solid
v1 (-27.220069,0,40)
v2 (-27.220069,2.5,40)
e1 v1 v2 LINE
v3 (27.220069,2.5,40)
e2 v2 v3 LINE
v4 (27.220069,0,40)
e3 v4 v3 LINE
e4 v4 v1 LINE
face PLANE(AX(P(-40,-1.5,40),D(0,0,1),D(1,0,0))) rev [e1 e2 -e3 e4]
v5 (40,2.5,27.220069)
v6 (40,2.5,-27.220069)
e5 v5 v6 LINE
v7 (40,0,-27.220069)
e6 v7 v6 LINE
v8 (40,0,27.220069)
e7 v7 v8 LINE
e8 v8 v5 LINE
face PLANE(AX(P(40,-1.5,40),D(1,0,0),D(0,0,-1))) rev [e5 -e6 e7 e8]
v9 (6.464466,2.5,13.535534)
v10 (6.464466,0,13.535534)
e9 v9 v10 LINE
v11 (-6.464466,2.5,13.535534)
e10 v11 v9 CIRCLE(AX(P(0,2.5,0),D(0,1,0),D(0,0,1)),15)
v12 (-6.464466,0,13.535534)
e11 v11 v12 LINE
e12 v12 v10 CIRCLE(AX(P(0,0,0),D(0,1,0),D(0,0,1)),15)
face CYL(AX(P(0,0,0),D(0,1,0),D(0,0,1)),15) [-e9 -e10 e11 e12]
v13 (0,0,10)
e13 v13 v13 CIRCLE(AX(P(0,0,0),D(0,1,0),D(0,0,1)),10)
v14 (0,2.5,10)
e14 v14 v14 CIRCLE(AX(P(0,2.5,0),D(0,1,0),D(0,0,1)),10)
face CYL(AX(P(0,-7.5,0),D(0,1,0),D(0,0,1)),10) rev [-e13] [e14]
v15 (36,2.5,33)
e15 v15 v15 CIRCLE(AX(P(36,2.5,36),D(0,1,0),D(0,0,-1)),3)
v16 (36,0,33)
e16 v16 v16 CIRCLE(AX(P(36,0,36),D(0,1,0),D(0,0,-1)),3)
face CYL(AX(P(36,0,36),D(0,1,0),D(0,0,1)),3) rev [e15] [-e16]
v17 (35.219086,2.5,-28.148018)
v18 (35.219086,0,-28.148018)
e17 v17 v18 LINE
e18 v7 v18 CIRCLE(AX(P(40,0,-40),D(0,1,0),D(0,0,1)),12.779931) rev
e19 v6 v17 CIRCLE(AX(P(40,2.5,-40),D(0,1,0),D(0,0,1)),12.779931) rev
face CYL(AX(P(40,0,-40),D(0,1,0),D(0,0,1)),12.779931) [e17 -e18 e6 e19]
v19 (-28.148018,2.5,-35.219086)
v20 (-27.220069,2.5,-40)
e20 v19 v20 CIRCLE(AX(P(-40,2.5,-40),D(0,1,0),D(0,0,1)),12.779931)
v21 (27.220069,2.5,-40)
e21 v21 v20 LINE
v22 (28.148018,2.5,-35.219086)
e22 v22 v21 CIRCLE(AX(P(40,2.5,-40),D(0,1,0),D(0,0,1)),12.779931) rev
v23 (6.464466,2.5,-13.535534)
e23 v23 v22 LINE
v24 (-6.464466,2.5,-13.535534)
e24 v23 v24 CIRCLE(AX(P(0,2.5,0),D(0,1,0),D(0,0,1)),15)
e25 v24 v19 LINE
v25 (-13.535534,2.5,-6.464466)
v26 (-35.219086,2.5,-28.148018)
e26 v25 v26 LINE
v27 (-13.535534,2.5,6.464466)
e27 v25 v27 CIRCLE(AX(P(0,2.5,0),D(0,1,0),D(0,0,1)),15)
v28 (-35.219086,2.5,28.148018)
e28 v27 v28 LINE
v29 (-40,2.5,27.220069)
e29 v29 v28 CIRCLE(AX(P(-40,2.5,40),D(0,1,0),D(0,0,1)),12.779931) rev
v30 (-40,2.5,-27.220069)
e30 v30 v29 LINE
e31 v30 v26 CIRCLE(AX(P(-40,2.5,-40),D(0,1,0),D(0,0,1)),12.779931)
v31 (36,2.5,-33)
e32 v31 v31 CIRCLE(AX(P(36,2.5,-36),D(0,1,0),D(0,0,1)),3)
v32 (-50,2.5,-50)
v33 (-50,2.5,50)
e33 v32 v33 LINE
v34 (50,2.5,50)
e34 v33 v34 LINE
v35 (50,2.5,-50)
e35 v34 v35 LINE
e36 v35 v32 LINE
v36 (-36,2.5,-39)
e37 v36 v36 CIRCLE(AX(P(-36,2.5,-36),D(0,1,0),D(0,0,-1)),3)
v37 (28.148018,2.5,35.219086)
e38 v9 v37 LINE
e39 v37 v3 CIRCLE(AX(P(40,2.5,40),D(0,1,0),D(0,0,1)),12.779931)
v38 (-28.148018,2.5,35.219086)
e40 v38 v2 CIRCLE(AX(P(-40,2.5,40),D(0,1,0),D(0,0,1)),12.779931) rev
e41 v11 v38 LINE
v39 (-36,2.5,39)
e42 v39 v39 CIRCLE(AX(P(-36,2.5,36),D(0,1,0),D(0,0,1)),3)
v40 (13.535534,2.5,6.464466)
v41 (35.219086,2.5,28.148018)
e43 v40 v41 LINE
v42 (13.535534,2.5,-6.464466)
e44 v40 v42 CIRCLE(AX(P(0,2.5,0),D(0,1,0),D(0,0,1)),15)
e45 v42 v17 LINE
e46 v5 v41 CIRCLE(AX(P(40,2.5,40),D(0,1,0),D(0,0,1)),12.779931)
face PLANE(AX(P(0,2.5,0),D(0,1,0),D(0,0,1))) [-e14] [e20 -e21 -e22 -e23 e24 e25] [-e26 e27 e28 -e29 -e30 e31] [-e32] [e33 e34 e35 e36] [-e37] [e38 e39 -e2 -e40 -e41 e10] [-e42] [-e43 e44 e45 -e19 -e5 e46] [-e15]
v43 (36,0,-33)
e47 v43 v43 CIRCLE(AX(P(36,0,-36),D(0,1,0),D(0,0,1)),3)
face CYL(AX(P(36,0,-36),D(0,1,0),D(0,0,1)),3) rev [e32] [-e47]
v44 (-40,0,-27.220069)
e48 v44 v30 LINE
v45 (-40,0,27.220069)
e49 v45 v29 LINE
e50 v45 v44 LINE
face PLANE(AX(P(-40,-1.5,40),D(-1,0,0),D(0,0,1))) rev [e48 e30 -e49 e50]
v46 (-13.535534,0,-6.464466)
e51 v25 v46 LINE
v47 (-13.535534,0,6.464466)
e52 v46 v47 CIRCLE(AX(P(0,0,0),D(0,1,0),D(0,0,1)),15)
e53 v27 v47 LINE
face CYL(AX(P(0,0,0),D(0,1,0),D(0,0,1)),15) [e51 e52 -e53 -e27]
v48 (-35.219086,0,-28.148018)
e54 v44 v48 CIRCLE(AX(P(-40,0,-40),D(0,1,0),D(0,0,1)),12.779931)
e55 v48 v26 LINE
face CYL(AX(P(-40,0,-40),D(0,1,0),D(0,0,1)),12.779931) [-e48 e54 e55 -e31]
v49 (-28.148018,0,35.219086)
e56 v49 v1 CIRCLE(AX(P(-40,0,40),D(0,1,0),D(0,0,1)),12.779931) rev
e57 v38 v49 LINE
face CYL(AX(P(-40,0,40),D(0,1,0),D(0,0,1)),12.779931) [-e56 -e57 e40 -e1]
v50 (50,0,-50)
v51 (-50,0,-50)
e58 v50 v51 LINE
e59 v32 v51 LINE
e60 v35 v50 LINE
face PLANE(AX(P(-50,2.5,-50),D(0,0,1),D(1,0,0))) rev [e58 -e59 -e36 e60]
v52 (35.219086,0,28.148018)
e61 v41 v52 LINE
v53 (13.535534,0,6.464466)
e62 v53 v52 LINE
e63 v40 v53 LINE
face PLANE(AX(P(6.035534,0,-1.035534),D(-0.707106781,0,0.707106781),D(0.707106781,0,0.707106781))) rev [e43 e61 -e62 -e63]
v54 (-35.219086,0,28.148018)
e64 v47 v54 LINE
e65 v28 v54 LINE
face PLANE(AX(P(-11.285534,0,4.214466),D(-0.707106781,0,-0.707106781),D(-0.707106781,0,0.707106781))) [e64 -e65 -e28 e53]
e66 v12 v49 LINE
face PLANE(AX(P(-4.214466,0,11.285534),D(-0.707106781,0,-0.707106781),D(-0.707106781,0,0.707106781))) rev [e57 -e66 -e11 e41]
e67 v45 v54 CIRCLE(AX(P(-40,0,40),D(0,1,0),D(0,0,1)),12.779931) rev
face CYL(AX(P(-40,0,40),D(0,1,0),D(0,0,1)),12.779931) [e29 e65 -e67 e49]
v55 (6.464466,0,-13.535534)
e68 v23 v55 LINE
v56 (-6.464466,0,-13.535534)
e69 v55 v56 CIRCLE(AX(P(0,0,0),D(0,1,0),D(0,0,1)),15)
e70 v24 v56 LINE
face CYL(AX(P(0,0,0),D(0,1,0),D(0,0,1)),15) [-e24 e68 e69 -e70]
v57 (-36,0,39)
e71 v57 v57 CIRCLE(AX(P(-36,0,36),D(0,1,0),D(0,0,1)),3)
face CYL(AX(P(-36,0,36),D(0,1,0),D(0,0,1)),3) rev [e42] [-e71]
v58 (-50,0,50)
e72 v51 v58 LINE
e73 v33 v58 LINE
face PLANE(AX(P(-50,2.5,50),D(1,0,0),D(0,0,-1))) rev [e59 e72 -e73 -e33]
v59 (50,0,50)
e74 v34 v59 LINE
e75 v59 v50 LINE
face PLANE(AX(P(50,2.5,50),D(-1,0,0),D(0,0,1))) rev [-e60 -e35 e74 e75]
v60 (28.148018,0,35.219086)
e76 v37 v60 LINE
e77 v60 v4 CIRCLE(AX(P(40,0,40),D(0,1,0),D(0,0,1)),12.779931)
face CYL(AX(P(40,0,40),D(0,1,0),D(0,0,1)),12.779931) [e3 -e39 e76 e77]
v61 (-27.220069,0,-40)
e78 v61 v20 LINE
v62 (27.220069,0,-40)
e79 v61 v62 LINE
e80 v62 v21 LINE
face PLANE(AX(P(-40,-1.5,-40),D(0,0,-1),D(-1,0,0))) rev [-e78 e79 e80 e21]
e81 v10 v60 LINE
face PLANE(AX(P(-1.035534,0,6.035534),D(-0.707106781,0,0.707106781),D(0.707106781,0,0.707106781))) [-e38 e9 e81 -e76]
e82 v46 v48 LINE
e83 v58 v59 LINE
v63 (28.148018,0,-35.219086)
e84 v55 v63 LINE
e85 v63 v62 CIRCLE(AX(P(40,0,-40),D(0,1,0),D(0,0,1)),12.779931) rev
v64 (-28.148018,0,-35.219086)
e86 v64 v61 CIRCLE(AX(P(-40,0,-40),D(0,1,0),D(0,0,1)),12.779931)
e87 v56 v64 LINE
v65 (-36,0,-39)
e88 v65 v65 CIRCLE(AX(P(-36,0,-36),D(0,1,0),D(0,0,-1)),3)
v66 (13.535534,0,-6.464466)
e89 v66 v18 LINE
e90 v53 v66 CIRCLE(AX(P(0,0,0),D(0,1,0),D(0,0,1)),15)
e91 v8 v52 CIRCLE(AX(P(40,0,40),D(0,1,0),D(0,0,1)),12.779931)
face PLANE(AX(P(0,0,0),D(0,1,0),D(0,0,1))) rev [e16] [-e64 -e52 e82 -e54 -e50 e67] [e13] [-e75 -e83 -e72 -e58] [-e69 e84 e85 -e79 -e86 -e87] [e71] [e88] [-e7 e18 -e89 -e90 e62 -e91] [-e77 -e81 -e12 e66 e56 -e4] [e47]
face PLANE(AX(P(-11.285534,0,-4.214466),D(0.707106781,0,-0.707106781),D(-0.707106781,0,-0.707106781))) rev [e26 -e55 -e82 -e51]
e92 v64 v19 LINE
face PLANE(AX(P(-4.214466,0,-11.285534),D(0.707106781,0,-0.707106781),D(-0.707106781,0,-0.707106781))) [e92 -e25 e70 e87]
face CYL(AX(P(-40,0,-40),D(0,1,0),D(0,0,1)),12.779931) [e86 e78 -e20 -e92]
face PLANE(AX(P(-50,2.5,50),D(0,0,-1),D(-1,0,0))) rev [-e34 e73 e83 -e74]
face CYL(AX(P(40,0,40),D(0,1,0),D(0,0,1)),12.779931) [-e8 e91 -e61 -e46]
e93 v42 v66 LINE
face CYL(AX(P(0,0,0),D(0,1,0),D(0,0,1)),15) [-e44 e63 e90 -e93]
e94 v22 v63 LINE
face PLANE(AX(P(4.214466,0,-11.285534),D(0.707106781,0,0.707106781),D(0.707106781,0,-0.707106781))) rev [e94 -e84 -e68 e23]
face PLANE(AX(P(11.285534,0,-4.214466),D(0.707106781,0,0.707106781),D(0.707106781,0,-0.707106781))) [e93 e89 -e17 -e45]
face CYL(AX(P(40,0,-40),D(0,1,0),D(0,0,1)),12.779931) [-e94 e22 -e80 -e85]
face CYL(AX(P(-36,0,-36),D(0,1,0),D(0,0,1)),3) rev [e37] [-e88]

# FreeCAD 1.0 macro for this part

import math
import FreeCAD as App
import Part
import Sketcher

V = App.Vector

doc = App.newDocument("Part")
params = doc.addObject("Spreadsheet::Sheet", "Params")
for row, (alias, value) in enumerate([
    ("sketch1_width", "100 mm"),
    ("pad1_length", "2.5 mm"),
    ("sketch2_width", "80 mm"),
    ("pocket1_length", "4 mm"),
    ("pad2_length", "2.5 mm"),
    ("sketch4_diameter", "30 mm"),
    ("pad3_length", "2.5 mm"),
    ("sketch5_width", "5 mm"),
    ("pocket2_length", "2.5 mm"),
    ("sketch6_length", "10 mm"),
    ("pad4_length", "2.5 mm"),
    ("sketch7_diameter", "6 mm"),
    ("pocket3_length", "2.5 mm"),
    ("sketch8_diameter", "20 mm"),
    ("pocket4_length", "10 mm"),
], start=1):
    params.set(f"A{row}", alias)
    params.set(f"B{row}", "=" + value)
    params.setAlias(f"B{row}", alias)

body = doc.addObject("PartDesign::Body", "Body")

# Sketch on XZ plane
sketch1 = body.newObject("Sketcher::SketchObject", "Sketch")
sketch1.AttachmentSupport = (doc.getObject("XZ_Plane"), [""])
sketch1.MapMode = "FlatFace"
sketch1.addGeometry(Part.LineSegment(V(-50, -50, 0), V(-50, 50, 0)), False)
sketch1.addGeometry(Part.LineSegment(V(-50, 50, 0), V(50, 50, 0)), False)
sketch1.addGeometry(Part.LineSegment(V(50, 50, 0), V(50, -50, 0)), False)
sketch1.addGeometry(Part.LineSegment(V(50, -50, 0), V(-50, -50, 0)), False)
sketch1.addConstraint(Sketcher.Constraint("Coincident", 0, 2, 1, 1))
sketch1.addConstraint(Sketcher.Constraint("Coincident", 1, 2, 2, 1))
sketch1.addConstraint(Sketcher.Constraint("Coincident", 2, 2, 3, 1))
sketch1.addConstraint(Sketcher.Constraint("Coincident", 3, 2, 0, 1))
sketch1.addConstraint(Sketcher.Constraint("Vertical", 0))
sketch1.addConstraint(Sketcher.Constraint("Horizontal", 1))
sketch1.addConstraint(Sketcher.Constraint("Vertical", 2))
sketch1.addConstraint(Sketcher.Constraint("Horizontal", 3))
sketch1.addConstraint(Sketcher.Constraint("Symmetric", 0, 2, 2, 2, -1, 1))
sketch1.addConstraint(Sketcher.Constraint("Equal", 3, 0))
sketch1.addConstraint(Sketcher.Constraint("DistanceX", 1, 1, 1, 2, 100.0))
sketch1.setExpression("Constraints[10]", "Params.sketch1_width")
pad1 = body.newObject("PartDesign::Pad", "Pad")
pad1.Profile = sketch1
pad1.setExpression("Length", "Params.pad1_length")
pad1.Reversed = True

# Sketch on XZ plane
sketch2 = body.newObject("Sketcher::SketchObject", "Sketch001")
sketch2.AttachmentSupport = (doc.getObject("XZ_Plane"), [""])
sketch2.MapMode = "FlatFace"
sketch2.AttachmentOffset = App.Placement(V(0, 0, -2.5), App.Rotation())
sketch2.addGeometry(Part.LineSegment(V(-40, -40, 0), V(-40, 40, 0)), False)
sketch2.addGeometry(Part.LineSegment(V(-40, 40, 0), V(40, 40, 0)), False)
sketch2.addGeometry(Part.LineSegment(V(40, 40, 0), V(40, -40, 0)), False)
sketch2.addGeometry(Part.LineSegment(V(40, -40, 0), V(-40, -40, 0)), False)
sketch2.addConstraint(Sketcher.Constraint("Coincident", 0, 2, 1, 1))
sketch2.addConstraint(Sketcher.Constraint("Coincident", 1, 2, 2, 1))
sketch2.addConstraint(Sketcher.Constraint("Coincident", 2, 2, 3, 1))
sketch2.addConstraint(Sketcher.Constraint("Coincident", 3, 2, 0, 1))
sketch2.addConstraint(Sketcher.Constraint("Vertical", 0))
sketch2.addConstraint(Sketcher.Constraint("Horizontal", 1))
sketch2.addConstraint(Sketcher.Constraint("Vertical", 2))
sketch2.addConstraint(Sketcher.Constraint("Horizontal", 3))
sketch2.addConstraint(Sketcher.Constraint("Symmetric", 0, 2, 2, 2, -1, 1))
sketch2.addConstraint(Sketcher.Constraint("Equal", 3, 0))
sketch2.addConstraint(Sketcher.Constraint("DistanceX", 1, 1, 1, 2, 80.0))
sketch2.setExpression("Constraints[10]", "Params.sketch2_width")
pocket1 = body.newObject("PartDesign::Pocket", "Pocket")
pocket1.Profile = sketch2
pocket1.setExpression("Length", "Params.pocket1_length")
pocket1.Reversed = True

# Sketch on XZ plane
sketch3 = body.newObject("Sketcher::SketchObject", "Sketch002")
sketch3.AttachmentSupport = (doc.getObject("XZ_Plane"), [""])
sketch3.MapMode = "FlatFace"
sketch3.AttachmentOffset = App.Placement(V(0, 0, -2.5), App.Rotation())
sketch3.addGeometry(Part.LineSegment(V(-40, 40, 0), V(-27, 40, 0)), False)
sketch3.addGeometry(Part.ArcOfCircle(Part.Circle(V(-40, 40, 0), V(0, 0, 1), 13), math.radians(-90), math.radians(0)), False)
sketch3.addGeometry(Part.LineSegment(V(-40, 27, 0), V(-40, 40, 0)), False)
sketch3.addGeometry(Part.ArcOfCircle(Part.Circle(V(-40, -40, 0), V(0, 0, 1), 13), math.radians(0), math.radians(90)), False)
sketch3.addGeometry(Part.LineSegment(V(-27, -40, 0), V(-40, -40, 0)), False)
sketch3.addGeometry(Part.LineSegment(V(-40, -40, 0), V(-40, -27, 0)), False)
sketch3.addGeometry(Part.LineSegment(V(40, -40, 0), V(27, -40, 0)), False)
sketch3.addGeometry(Part.ArcOfCircle(Part.Circle(V(40, -40, 0), V(0, 0, 1), 13), math.radians(90), math.radians(180)), False)
sketch3.addGeometry(Part.LineSegment(V(40, -27, 0), V(40, -40, 0)), False)
sketch3.addGeometry(Part.ArcOfCircle(Part.Circle(V(40, 40, 0), V(0, 0, 1), 13), math.radians(180), math.radians(270)), False)
sketch3.addGeometry(Part.LineSegment(V(27, 40, 0), V(40, 40, 0)), False)
sketch3.addGeometry(Part.LineSegment(V(40, 40, 0), V(40, 27, 0)), False)
sketch3.addConstraint(Sketcher.Constraint("Coincident", 0, 2, 1, 2))
sketch3.addConstraint(Sketcher.Constraint("Coincident", 1, 1, 2, 1))
sketch3.addConstraint(Sketcher.Constraint("Coincident", 2, 2, 0, 1))
sketch3.addConstraint(Sketcher.Constraint("Coincident", 3, 1, 4, 1))
sketch3.addConstraint(Sketcher.Constraint("Coincident", 4, 2, 5, 1))
sketch3.addConstraint(Sketcher.Constraint("Coincident", 5, 2, 3, 2))
sketch3.addConstraint(Sketcher.Constraint("Coincident", 6, 2, 7, 2))
sketch3.addConstraint(Sketcher.Constraint("Coincident", 7, 1, 8, 1))
sketch3.addConstraint(Sketcher.Constraint("Coincident", 8, 2, 6, 1))
sketch3.addConstraint(Sketcher.Constraint("Coincident", 9, 1, 10, 1))
sketch3.addConstraint(Sketcher.Constraint("Coincident", 10, 2, 11, 1))
sketch3.addConstraint(Sketcher.Constraint("Coincident", 11, 2, 9, 2))
sketch3.addConstraint(Sketcher.Constraint("Horizontal", 0))
sketch3.addConstraint(Sketcher.Constraint("Vertical", 2))
sketch3.addConstraint(Sketcher.Constraint("Horizontal", 4))
sketch3.addConstraint(Sketcher.Constraint("Vertical", 5))
sketch3.addConstraint(Sketcher.Constraint("Horizontal", 6))
sketch3.addConstraint(Sketcher.Constraint("Vertical", 8))
sketch3.addConstraint(Sketcher.Constraint("Horizontal", 10))
sketch3.addConstraint(Sketcher.Constraint("Vertical", 11))
sketch3.addConstraint(Sketcher.Constraint("Coincident", 2, 2, 1, 3))
sketch3.addConstraint(Sketcher.Constraint("Coincident", 4, 2, 3, 3))
sketch3.addConstraint(Sketcher.Constraint("Coincident", 8, 2, 7, 3))
sketch3.addConstraint(Sketcher.Constraint("Coincident", 10, 2, 9, 3))
sketch3.addConstraint(Sketcher.Constraint("Equal", 1, 3))
sketch3.addConstraint(Sketcher.Constraint("Equal", 3, 7))
sketch3.addConstraint(Sketcher.Constraint("Equal", 7, 9))
sketch3.addConstraint(Sketcher.Constraint("Symmetric", 1, 3, 7, 3, -1, 1))
sketch3.addConstraint(Sketcher.Constraint("Symmetric", 3, 3, 9, 3, -1, 1))
sketch3.addConstraint(Sketcher.Constraint("Symmetric", 3, 3, 7, 3, -2))
sketch3.addConstraint(Sketcher.Constraint("DistanceX", 1, 3, -1, 1, 40.0))
sketch3.addConstraint(Sketcher.Constraint("DistanceY", -1, 1, 1, 3, 40.0))
sketch3.addConstraint(Sketcher.Constraint("Radius", 1, 12.779931))
pad2 = body.newObject("PartDesign::Pad", "Pad001")
pad2.Profile = sketch3
pad2.setExpression("Length", "Params.pad2_length")
body2 = doc.addObject("PartDesign::Body", "Body001")

# Sketch on XZ plane
sketch4 = body2.newObject("Sketcher::SketchObject", "Sketch003")
sketch4.AttachmentSupport = (doc.getObject("XZ_Plane001"), [""])
sketch4.MapMode = "FlatFace"
sketch4.AttachmentOffset = App.Placement(V(0, 0, -2.5), App.Rotation())
sketch4.addGeometry(Part.Circle(V(0, 0, 0), V(0, 0, 1), 15), False)
sketch4.addConstraint(Sketcher.Constraint("Coincident", 0, 3, -1, 1))
sketch4.addConstraint(Sketcher.Constraint("Diameter", 0, 30.0))
sketch4.setExpression("Constraints[1]", "Params.sketch4_diameter")
pad3 = body2.newObject("PartDesign::Pad", "Pad002")
pad3.Profile = sketch4
pad3.setExpression("Length", "Params.pad3_length")

# Sketch on XZ plane
sketch5 = body2.newObject("Sketcher::SketchObject", "Sketch004")
sketch5.AttachmentSupport = (doc.getObject("XZ_Plane001"), [""])
sketch5.MapMode = "FlatFace"
sketch5.AttachmentOffset = App.Placement(V(0, 0, -2.5), App.Rotation())
sketch5.addGeometry(Part.LineSegment(V(-2, -2, 0), V(-2, 2, 0)), False)
sketch5.addGeometry(Part.LineSegment(V(-2, 2, 0), V(2, 2, 0)), False)
sketch5.addGeometry(Part.LineSegment(V(2, 2, 0), V(2, -2, 0)), False)
sketch5.addGeometry(Part.LineSegment(V(2, -2, 0), V(-2, -2, 0)), False)
sketch5.addConstraint(Sketcher.Constraint("Coincident", 0, 2, 1, 1))
sketch5.addConstraint(Sketcher.Constraint("Coincident", 1, 2, 2, 1))
sketch5.addConstraint(Sketcher.Constraint("Coincident", 2, 2, 3, 1))
sketch5.addConstraint(Sketcher.Constraint("Coincident", 3, 2, 0, 1))
sketch5.addConstraint(Sketcher.Constraint("Vertical", 0))
sketch5.addConstraint(Sketcher.Constraint("Horizontal", 1))
sketch5.addConstraint(Sketcher.Constraint("Vertical", 2))
sketch5.addConstraint(Sketcher.Constraint("Horizontal", 3))
sketch5.addConstraint(Sketcher.Constraint("Symmetric", 0, 2, 2, 2, -1, 1))
sketch5.addConstraint(Sketcher.Constraint("Equal", 3, 0))
sketch5.addConstraint(Sketcher.Constraint("DistanceX", 1, 1, 1, 2, 5.0))
sketch5.setExpression("Constraints[10]", "Params.sketch5_width")
pocket2 = body2.newObject("PartDesign::Pocket", "Pocket001")
pocket2.Profile = sketch5
pocket2.setExpression("Length", "Params.pocket2_length")
pocket2.Reversed = True
body.AllowCompound = True
doc.recompute()

boolean = body.newObject("PartDesign::Boolean", "Boolean")
boolean.Type = "Fuse"
boolean.addObjects([body2])

# Sketch on XZ plane
sketch6 = body.newObject("Sketcher::SketchObject", "Sketch005")
sketch6.AttachmentSupport = (doc.getObject("XZ_Plane"), [""])
sketch6.MapMode = "FlatFace"
sketch6.AttachmentOffset = App.Placement(V(0, 0, -2.5), App.Rotation())
sketch6.addGeometry(Part.LineSegment(V(-1, 6, 0), V(34, 42, 0)), False)
sketch6.addGeometry(Part.LineSegment(V(34, 42, 0), V(42, 34, 0)), False)
sketch6.addGeometry(Part.LineSegment(V(42, 34, 0), V(6, -1, 0)), False)
sketch6.addGeometry(Part.LineSegment(V(6, -1, 0), V(-1, 6, 0)), False)
sketch6.addGeometry(Part.LineSegment(V(-11, 4, 0), V(-42, 34, 0)), False)
sketch6.addGeometry(Part.LineSegment(V(-42, 34, 0), V(-34, 42, 0)), False)
sketch6.addGeometry(Part.LineSegment(V(-34, 42, 0), V(-4, 11, 0)), False)
sketch6.addGeometry(Part.LineSegment(V(-4, 11, 0), V(-11, 4, 0)), False)
sketch6.addGeometry(Part.LineSegment(V(11, -4, 0), V(42, -34, 0)), False)
sketch6.addGeometry(Part.LineSegment(V(42, -34, 0), V(34, -42, 0)), False)
sketch6.addGeometry(Part.LineSegment(V(34, -42, 0), V(4, -11, 0)), False)
sketch6.addGeometry(Part.LineSegment(V(4, -11, 0), V(11, -4, 0)), False)
sketch6.addGeometry(Part.LineSegment(V(-4, -11, 0), V(-34, -42, 0)), False)
sketch6.addGeometry(Part.LineSegment(V(-34, -42, 0), V(-42, -34, 0)), False)
sketch6.addGeometry(Part.LineSegment(V(-42, -34, 0), V(-11, -4, 0)), False)
sketch6.addGeometry(Part.LineSegment(V(-11, -4, 0), V(-4, -11, 0)), False)
sketch6.addConstraint(Sketcher.Constraint("Coincident", 0, 2, 1, 1))
sketch6.addConstraint(Sketcher.Constraint("Coincident", 1, 2, 2, 1))
sketch6.addConstraint(Sketcher.Constraint("Coincident", 2, 2, 3, 1))
sketch6.addConstraint(Sketcher.Constraint("Coincident", 3, 2, 0, 1))
sketch6.addConstraint(Sketcher.Constraint("Coincident", 4, 2, 5, 1))
sketch6.addConstraint(Sketcher.Constraint("Coincident", 5, 2, 6, 1))
sketch6.addConstraint(Sketcher.Constraint("Coincident", 6, 2, 7, 1))
sketch6.addConstraint(Sketcher.Constraint("Coincident", 7, 2, 4, 1))
sketch6.addConstraint(Sketcher.Constraint("Coincident", 8, 2, 9, 1))
sketch6.addConstraint(Sketcher.Constraint("Coincident", 9, 2, 10, 1))
sketch6.addConstraint(Sketcher.Constraint("Coincident", 10, 2, 11, 1))
sketch6.addConstraint(Sketcher.Constraint("Coincident", 11, 2, 8, 1))
sketch6.addConstraint(Sketcher.Constraint("Coincident", 12, 2, 13, 1))
sketch6.addConstraint(Sketcher.Constraint("Coincident", 13, 2, 14, 1))
sketch6.addConstraint(Sketcher.Constraint("Coincident", 14, 2, 15, 1))
sketch6.addConstraint(Sketcher.Constraint("Coincident", 15, 2, 12, 1))
sketch6.addConstraint(Sketcher.Constraint("Symmetric", 4, 2, 8, 2, -1, 1))
sketch6.addConstraint(Sketcher.Constraint("Symmetric", 5, 2, 9, 2, -1, 1))
sketch6.addConstraint(Sketcher.Constraint("Symmetric", 6, 2, 10, 2, -1, 1))
sketch6.addConstraint(Sketcher.Constraint("Symmetric", 7, 2, 11, 2, -1, 1))
sketch6.addConstraint(Sketcher.Constraint("Symmetric", 0, 2, 12, 2, -1, 1))
sketch6.addConstraint(Sketcher.Constraint("Symmetric", 1, 2, 13, 2, -1, 1))
sketch6.addConstraint(Sketcher.Constraint("Symmetric", 1, 2, 4, 2, -2))
sketch6.addConstraint(Sketcher.Constraint("Symmetric", 0, 2, 5, 2, -2))
sketch6.addConstraint(Sketcher.Constraint("Symmetric", 11, 2, 14, 2, -2))
sketch6.addConstraint(Sketcher.Constraint("Symmetric", 10, 2, 15, 2, -2))
sketch6.addConstraint(Sketcher.Constraint("Perpendicular", 0, 1))
sketch6.addConstraint(Sketcher.Constraint("Perpendicular", 1, 2))
sketch6.addConstraint(Sketcher.Constraint("Perpendicular", 2, 3))
sketch6.addConstraint(Sketcher.Constraint("Parallel", 3, 4))
sketch6.addConstraint(Sketcher.Constraint("Perpendicular", 4, 5))
sketch6.addConstraint(Sketcher.Constraint("Perpendicular", 5, 6))
sketch6.addConstraint(Sketcher.Constraint("Perpendicular", 6, 7))
sketch6.addConstraint(Sketcher.Constraint("Distance", 1, 10.0))
sketch6.addConstraint(Sketcher.Constraint("DistanceX", 7, 2, 10, 2, 15.5))
sketch6.addConstraint(Sketcher.Constraint("DistanceY", 10, 2, 7, 2, 15.5))
sketch6.addConstraint(Sketcher.Constraint("DistanceY", 3, 2, 6, 2, 5.25))
sketch6.addConstraint(Sketcher.Constraint("DistanceY", -1, 1, 0, 2, 41.539771))
sketch6.setExpression("Constraints[33]", "Params.sketch6_length")
pad4 = body.newObject("PartDesign::Pad", "Pad003")
pad4.Profile = sketch6
pad4.setExpression("Length", "Params.pad4_length")

# Sketch on XZ plane
sketch7 = body.newObject("Sketcher::SketchObject", "Sketch006")
sketch7.AttachmentSupport = (doc.getObject("XZ_Plane"), [""])
sketch7.MapMode = "FlatFace"
sketch7.AttachmentOffset = App.Placement(V(0, 0, -2.5), App.Rotation())
sketch7.addGeometry(Part.Circle(V(36, -36, 0), V(0, 0, 1), 3), False)
sketch7.addGeometry(Part.Circle(V(-36, -36, 0), V(0, 0, 1), 3), False)
sketch7.addGeometry(Part.Circle(V(36, 36, 0), V(0, 0, 1), 3), False)
sketch7.addGeometry(Part.Circle(V(-36, 36, 0), V(0, 0, 1), 3), False)
sketch7.addConstraint(Sketcher.Constraint("Equal", 0, 1))
sketch7.addConstraint(Sketcher.Constraint("Equal", 1, 2))
sketch7.addConstraint(Sketcher.Constraint("Equal", 2, 3))
sketch7.addConstraint(Sketcher.Constraint("Symmetric", 1, 3, 2, 3, -1, 1))
sketch7.addConstraint(Sketcher.Constraint("Symmetric", 0, 3, 3, 3, -1, 1))
sketch7.addConstraint(Sketcher.Constraint("Symmetric", 0, 3, 1, 3, -2))
sketch7.addConstraint(Sketcher.Constraint("Diameter", 0, 6.0))
sketch7.addConstraint(Sketcher.Constraint("DistanceX", -1, 1, 0, 3, 36.0))
sketch7.addConstraint(Sketcher.Constraint("DistanceY", 0, 3, -1, 1, 36.0))
sketch7.setExpression("Constraints[6]", "Params.sketch7_diameter")
pocket3 = body.newObject("PartDesign::Pocket", "Pocket002")
pocket3.Profile = sketch7
pocket3.setExpression("Length", "Params.pocket3_length")
pocket3.Reversed = True

# Sketch on XZ plane
sketch8 = body.newObject("Sketcher::SketchObject", "Sketch007")
sketch8.AttachmentSupport = (doc.getObject("XZ_Plane"), [""])
sketch8.MapMode = "FlatFace"
sketch8.AttachmentOffset = App.Placement(V(0, 0, -2.5), App.Rotation())
sketch8.addGeometry(Part.Circle(V(0, 0, 0), V(0, 0, 1), 10), False)
sketch8.addConstraint(Sketcher.Constraint("Coincident", 0, 3, -1, 1))
sketch8.addConstraint(Sketcher.Constraint("Diameter", 0, 20.0))
sketch8.setExpression("Constraints[1]", "Params.sketch8_diameter")
pocket4 = body.newObject("PartDesign::Pocket", "Pocket003")
pocket4.Profile = sketch8
pocket4.setExpression("Length", "Params.pocket4_length")
pocket4.Reversed = True

doc.recompute()
